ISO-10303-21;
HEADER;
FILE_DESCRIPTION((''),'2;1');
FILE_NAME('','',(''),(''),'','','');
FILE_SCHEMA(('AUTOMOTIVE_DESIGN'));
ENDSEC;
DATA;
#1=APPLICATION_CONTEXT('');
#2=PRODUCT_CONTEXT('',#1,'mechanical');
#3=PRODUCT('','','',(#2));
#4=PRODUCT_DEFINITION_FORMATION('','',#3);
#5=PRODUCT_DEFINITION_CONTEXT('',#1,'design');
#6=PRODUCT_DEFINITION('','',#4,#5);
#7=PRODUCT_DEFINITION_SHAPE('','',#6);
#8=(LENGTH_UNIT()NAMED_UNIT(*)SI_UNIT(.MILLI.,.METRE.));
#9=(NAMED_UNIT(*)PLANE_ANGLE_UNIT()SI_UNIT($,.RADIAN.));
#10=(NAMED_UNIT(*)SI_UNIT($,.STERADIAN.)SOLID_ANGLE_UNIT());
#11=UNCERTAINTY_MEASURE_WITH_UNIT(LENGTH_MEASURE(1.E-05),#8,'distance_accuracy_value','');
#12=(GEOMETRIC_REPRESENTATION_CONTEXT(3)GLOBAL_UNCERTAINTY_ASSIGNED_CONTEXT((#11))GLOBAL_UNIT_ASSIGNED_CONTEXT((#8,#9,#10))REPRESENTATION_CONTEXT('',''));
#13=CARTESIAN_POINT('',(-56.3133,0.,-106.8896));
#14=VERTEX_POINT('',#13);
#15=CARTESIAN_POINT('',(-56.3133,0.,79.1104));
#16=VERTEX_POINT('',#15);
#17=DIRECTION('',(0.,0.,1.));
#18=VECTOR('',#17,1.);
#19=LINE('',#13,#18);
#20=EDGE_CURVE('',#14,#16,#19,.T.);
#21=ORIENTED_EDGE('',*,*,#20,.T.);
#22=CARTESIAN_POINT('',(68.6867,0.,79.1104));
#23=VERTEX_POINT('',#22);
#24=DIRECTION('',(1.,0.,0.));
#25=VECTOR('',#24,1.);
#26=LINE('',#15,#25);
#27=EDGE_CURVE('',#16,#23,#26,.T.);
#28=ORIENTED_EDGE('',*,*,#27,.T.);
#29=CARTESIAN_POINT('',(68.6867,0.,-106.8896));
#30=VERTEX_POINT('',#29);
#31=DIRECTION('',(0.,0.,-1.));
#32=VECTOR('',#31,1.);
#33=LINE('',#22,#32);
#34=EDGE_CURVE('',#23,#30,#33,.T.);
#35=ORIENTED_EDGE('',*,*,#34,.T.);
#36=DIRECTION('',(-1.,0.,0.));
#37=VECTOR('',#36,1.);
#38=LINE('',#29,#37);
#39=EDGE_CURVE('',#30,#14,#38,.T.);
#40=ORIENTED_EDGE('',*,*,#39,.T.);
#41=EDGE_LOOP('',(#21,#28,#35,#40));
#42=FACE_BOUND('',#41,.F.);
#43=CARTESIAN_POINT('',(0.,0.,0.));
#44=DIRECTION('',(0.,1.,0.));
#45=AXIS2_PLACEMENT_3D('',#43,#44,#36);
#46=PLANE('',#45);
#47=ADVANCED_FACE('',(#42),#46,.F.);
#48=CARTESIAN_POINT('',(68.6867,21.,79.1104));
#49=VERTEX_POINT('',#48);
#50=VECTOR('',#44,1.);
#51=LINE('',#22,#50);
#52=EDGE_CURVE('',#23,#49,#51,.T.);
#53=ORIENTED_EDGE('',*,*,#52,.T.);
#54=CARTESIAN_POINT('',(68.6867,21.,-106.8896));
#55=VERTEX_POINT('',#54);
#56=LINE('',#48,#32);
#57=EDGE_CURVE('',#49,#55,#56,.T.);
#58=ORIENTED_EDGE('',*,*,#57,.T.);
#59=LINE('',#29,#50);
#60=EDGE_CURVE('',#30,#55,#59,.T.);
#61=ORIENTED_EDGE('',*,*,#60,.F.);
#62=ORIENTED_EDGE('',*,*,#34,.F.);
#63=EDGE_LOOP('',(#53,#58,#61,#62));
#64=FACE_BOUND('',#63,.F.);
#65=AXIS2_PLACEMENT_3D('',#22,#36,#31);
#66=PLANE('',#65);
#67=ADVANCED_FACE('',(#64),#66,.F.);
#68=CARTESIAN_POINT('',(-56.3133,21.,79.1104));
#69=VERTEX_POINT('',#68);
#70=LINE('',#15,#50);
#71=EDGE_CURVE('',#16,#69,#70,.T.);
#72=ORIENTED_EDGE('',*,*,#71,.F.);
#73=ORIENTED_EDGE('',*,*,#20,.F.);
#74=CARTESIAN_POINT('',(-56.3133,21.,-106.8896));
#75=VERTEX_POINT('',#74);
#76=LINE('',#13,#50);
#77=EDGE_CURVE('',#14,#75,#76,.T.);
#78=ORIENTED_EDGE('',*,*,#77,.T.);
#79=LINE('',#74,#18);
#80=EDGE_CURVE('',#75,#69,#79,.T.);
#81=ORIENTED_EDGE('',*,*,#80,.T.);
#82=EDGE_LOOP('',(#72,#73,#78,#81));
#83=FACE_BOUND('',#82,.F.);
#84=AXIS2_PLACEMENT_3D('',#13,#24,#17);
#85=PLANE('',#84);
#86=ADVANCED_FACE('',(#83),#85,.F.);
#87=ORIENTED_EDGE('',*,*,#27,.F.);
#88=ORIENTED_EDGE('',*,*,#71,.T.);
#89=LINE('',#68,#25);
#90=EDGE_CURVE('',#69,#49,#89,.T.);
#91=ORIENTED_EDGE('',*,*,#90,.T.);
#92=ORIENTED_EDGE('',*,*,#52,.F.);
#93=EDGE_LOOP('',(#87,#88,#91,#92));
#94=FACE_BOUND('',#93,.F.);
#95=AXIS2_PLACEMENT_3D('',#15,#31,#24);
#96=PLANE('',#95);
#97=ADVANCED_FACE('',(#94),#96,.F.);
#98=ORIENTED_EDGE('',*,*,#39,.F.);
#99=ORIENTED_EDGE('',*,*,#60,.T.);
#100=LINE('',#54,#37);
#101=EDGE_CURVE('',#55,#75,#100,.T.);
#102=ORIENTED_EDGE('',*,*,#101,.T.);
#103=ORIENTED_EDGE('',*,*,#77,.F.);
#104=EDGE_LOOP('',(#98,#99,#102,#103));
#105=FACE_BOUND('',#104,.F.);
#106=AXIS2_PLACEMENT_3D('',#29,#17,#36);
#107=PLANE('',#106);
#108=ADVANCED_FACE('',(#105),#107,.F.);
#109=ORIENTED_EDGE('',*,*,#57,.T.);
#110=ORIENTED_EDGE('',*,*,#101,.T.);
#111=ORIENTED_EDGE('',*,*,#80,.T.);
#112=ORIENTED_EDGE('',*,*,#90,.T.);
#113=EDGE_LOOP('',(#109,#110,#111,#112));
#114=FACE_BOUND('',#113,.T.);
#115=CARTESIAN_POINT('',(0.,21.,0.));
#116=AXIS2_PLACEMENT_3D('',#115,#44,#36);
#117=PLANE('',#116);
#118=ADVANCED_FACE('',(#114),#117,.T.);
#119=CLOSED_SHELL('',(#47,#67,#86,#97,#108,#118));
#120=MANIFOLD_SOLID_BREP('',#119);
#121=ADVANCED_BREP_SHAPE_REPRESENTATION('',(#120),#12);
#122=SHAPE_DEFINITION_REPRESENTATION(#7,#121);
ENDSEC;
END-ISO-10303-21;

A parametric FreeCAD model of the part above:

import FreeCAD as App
import Part
import Sketcher
from FreeCAD import Vector


def add_polygon(sketch, points):
    """Adds a closed chain of lines whose ends are joined by coincident constraints."""
    first, n = sketch.GeometryCount, len(points)
    for a, b in zip(points, points[1:] + points[:1]):
        sketch.addGeometry(Part.LineSegment(App.Vector(*a, 0), App.Vector(*b, 0)), False)
    for i in range(n):
        sketch.addConstraint(Sketcher.Constraint("Coincident", first + i, 2, first + (i + 1) % n, 1))

doc = App.newDocument("Part")
params = doc.addObject("Spreadsheet::Sheet", "Params")
for row, (alias, value) in enumerate([
    ("sketch1_width", "125 mm"),
    ("sketch1_height", "186 mm"),
    ("pad1_length", "21 mm"),
], start=1):
    params.set(f"A{row}", alias)
    params.set(f"B{row}", "=" + value)
    params.setAlias(f"B{row}", alias)

body = doc.addObject("PartDesign::Body", "Body")

# Sketch on XZ plane
sketch1 = body.newObject("Sketcher::SketchObject", "Sketch")
sketch1.AttachmentSupport = (doc.getObject("XZ_Plane"), [""])
sketch1.MapMode = "FlatFace"
add_polygon(sketch1, [(-56.3133, -106.8896), (-56.3133, 79.1104), (68.6867, 79.1104), (68.6867, -106.8896)])  # lines 0-3
sketch1.addConstraint(Sketcher.Constraint("Vertical", 0))
sketch1.addConstraint(Sketcher.Constraint("Horizontal", 1))
sketch1.addConstraint(Sketcher.Constraint("Vertical", 2))
sketch1.addConstraint(Sketcher.Constraint("Horizontal", 3))
sketch1.addConstraint(Sketcher.Constraint("DistanceX", 1, 1, 1, 2, 125.0))
sketch1.addConstraint(Sketcher.Constraint("DistanceY", 0, 1, 0, 2, 186.0))
sketch1.addConstraint(Sketcher.Constraint("DistanceX", 0, 2, -1, 1, 56.3133))
sketch1.addConstraint(Sketcher.Constraint("DistanceY", -1, 1, 0, 2, 79.1104))
sketch1.setExpression("Constraints[8]", "Params.sketch1_width")
sketch1.setExpression("Constraints[9]", "Params.sketch1_height")
pad1 = body.newObject("PartDesign::Pad", "Pad")
pad1.Profile = sketch1
pad1.setExpression("Length", "Params.pad1_length")
pad1.Reversed = True

doc.recompute()
